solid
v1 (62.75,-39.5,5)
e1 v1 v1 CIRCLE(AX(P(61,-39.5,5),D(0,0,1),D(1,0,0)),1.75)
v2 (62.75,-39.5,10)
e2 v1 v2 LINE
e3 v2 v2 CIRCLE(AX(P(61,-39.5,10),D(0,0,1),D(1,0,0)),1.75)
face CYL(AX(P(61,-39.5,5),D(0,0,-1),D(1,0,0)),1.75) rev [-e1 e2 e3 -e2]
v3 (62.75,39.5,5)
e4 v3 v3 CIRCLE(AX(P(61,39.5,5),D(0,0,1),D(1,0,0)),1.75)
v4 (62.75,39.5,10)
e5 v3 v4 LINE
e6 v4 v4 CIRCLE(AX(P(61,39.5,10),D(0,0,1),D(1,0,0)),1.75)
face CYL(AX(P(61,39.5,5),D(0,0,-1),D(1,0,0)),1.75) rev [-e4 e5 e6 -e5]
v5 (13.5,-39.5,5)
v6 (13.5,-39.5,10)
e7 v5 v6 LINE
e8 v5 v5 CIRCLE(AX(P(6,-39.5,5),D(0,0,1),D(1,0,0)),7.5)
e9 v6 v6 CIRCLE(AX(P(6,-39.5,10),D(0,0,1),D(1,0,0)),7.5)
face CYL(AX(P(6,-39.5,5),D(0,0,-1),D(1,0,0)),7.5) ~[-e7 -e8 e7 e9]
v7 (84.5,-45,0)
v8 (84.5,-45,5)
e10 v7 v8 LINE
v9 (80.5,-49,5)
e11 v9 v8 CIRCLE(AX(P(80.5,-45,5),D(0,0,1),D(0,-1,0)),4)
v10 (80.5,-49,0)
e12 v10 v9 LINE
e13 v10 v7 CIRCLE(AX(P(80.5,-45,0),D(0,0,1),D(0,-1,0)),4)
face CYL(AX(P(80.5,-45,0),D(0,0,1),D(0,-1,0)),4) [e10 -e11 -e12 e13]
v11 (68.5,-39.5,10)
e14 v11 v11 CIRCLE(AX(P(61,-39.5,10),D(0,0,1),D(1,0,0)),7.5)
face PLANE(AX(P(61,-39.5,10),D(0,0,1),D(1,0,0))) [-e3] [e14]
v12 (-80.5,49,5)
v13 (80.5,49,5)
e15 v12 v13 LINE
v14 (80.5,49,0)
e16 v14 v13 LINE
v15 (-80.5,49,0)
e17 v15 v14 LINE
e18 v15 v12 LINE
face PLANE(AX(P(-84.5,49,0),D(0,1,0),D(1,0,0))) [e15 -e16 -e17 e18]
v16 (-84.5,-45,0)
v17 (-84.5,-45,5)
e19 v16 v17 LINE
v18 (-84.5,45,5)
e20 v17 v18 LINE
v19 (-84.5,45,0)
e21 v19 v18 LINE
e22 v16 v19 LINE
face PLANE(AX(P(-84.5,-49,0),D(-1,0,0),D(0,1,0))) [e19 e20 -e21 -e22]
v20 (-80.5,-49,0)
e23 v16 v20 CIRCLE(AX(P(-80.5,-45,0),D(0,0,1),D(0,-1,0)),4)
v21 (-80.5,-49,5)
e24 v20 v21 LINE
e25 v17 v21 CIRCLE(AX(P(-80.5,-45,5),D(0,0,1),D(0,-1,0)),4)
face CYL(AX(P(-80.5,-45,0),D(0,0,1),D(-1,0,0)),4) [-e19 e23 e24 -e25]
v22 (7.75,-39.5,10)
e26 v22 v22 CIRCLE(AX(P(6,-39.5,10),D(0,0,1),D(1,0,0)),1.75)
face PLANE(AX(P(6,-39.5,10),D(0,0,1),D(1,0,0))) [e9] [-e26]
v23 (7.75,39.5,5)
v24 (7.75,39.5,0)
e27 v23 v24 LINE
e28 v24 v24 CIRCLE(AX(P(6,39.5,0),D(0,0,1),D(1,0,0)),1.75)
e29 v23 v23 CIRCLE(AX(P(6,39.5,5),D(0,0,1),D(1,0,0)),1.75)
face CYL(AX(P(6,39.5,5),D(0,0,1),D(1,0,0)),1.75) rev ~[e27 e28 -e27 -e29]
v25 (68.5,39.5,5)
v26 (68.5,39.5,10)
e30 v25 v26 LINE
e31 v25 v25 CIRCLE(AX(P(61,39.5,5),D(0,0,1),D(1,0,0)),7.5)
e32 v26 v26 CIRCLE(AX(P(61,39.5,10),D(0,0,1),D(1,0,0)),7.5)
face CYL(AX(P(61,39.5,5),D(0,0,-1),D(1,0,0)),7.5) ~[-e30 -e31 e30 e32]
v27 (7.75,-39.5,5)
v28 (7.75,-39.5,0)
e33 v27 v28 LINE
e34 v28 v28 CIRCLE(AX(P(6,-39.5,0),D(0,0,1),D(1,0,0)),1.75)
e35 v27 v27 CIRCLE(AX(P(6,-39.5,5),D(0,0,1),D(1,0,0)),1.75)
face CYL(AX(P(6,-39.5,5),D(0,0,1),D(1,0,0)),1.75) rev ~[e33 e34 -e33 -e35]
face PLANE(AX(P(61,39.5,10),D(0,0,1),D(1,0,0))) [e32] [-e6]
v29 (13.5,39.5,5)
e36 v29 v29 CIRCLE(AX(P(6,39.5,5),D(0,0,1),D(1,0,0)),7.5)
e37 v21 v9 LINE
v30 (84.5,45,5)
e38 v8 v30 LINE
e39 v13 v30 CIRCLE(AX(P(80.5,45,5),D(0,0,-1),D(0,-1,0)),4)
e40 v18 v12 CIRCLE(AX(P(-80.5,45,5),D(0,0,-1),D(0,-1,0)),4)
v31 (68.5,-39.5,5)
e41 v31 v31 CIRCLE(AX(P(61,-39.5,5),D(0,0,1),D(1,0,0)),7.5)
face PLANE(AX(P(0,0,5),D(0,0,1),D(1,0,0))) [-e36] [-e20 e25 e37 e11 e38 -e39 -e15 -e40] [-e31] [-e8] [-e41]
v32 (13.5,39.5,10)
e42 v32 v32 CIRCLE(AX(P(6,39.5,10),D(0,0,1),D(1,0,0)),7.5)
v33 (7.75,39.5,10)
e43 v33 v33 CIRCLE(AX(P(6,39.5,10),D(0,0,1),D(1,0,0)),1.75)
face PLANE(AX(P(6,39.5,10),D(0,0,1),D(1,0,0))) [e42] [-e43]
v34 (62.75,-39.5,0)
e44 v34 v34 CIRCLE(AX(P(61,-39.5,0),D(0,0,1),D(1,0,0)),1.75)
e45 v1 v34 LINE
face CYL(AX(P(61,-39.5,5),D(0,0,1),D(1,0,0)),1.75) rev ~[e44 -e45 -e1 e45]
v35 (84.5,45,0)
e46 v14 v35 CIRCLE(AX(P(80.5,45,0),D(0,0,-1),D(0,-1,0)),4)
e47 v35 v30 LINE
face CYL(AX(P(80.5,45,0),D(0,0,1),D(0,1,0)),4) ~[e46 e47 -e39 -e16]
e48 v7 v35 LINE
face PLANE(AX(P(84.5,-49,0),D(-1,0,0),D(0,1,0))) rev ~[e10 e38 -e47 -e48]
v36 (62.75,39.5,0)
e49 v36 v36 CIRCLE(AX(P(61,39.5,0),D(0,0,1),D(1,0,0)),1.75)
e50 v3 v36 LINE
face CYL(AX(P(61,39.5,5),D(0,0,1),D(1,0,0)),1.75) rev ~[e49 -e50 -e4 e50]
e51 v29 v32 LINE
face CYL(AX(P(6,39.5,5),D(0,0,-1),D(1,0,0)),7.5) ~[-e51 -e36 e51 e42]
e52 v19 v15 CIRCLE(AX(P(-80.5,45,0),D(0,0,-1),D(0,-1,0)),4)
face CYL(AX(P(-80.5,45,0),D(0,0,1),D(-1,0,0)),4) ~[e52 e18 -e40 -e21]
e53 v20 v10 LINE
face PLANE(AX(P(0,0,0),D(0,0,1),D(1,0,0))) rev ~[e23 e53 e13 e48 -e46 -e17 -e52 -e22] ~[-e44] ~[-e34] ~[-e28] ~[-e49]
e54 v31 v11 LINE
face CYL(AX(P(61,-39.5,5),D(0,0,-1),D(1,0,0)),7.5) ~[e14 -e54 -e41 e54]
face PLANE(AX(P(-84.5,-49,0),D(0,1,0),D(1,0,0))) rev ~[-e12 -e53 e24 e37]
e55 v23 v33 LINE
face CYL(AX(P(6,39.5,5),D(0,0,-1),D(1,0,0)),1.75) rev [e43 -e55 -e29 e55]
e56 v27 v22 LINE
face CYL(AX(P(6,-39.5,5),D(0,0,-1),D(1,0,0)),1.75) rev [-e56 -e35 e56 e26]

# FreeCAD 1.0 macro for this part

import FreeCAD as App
import Part
import Sketcher
from FreeCAD import Vector
Q = App.Units.Quantity


def edges_at(feature, points):
    """Names of the edges that pass closest to the given points."""
    edges = feature.Shape.Edges
    near = lambda p: min(range(len(edges)), key=lambda i: edges[i].distToShape(Part.Vertex(*p))[0])
    return sorted({f"Edge{near(p) + 1}" for p in points})


def add_polygon(sketch, points):
    """Adds a closed chain of lines whose ends are joined by coincident constraints."""
    first, n = sketch.GeometryCount, len(points)
    for a, b in zip(points, points[1:] + points[:1]):
        sketch.addGeometry(Part.LineSegment(App.Vector(*a, 0), App.Vector(*b, 0)), False)
    for i in range(n):
        sketch.addConstraint(Sketcher.Constraint("Coincident", first + i, 2, first + (i + 1) % n, 1))

doc = App.newDocument("Part")
body = doc.addObject("PartDesign::Body", "Body")

# Sketch on XY plane
sketch1 = doc.addObject("Sketcher::SketchObject", "Sketch")
body.addObject(sketch1)
sketch1.AttachmentSupport = (doc.XY_Plane, [""])
sketch1.MapMode = "FlatFace"
add_polygon(sketch1, [(-84, 49), (-84, -49), (84, -49), (84, 49)])  # lines 0-3
sketch1.addConstraint([
    Sketcher.Constraint("Vertical", 0),
    Sketcher.Constraint("Horizontal", 1),
    Sketcher.Constraint("Vertical", 2),
    Sketcher.Constraint("Horizontal", 3),
    Sketcher.Constraint("Symmetric", 0, 2, 2, 2, -1, 1),
    Sketcher.Constraint("DistanceX", 1, 1, 1, 2, Q("169 mm")),
    Sketcher.Constraint("DistanceY", 0, 2, 0, 1, Q("98 mm")),
])
pad1 = doc.addObject("PartDesign::Pad", "Pad")
body.addObject(pad1)
pad1.Profile = sketch1
pad1.Length = 5

# Sketch on XY plane
sketch2 = doc.addObject("Sketcher::SketchObject", "Sketch001")
body.addObject(sketch2)
sketch2.AttachmentSupport = (doc.XY_Plane, [""])
sketch2.MapMode = "FlatFace"
sketch2.AttachmentOffset = App.Placement(Vector(0, 0, 5), App.Rotation())
sketch2.addGeometry([
    Part.Circle(Vector(6, 39.5, 0), Vector(0, 0, 1), 1.8),
    Part.Circle(Vector(61, 39.5, 0), Vector(0, 0, 1), 1.8),
    Part.Circle(Vector(61, -39.5, 0), Vector(0, 0, 1), 1.8),
    Part.Circle(Vector(6, -39.5, 0), Vector(0, 0, 1), 1.8),
], False)
sketch2.addConstraint([
    Sketcher.Constraint("Equal", 0, 1),
    Sketcher.Constraint("Equal", 1, 2),
    Sketcher.Constraint("Equal", 2, 3),
    Sketcher.Constraint("Symmetric", 1, 3, 2, 3, -1),
    Sketcher.Constraint("Symmetric", 0, 3, 3, 3, -1),
    Sketcher.Constraint("Horizontal", 0, 3, 1, 3),
    Sketcher.Constraint("Diameter", 0, Q("3.5 mm")),
    Sketcher.Constraint("DistanceX", -1, 1, 0, 3, Q("6 mm")),
    Sketcher.Constraint("DistanceX", -1, 1, 1, 3, Q("61 mm")),
    Sketcher.Constraint("DistanceY", 2, 3, 1, 3, Q("79 mm")),
])
pocket1 = doc.addObject("PartDesign::Pocket", "Pocket")
body.addObject(pocket1)
pocket1.Profile = sketch2
pocket1.Type = "ThroughAll"
doc.recompute()

fillet = doc.addObject("PartDesign::Fillet", "Fillet")
body.addObject(fillet)
fillet.Base = (pocket1, edges_at(pocket1, [
    (-84.5, 49, 2.5),
    (-84.5, -49, 2.5),
    (84.5, -49, 2.5),
    (84.5, 49, 2.5),
]))
fillet.Radius = 4

# Sketch on XY plane
sketch3 = doc.addObject("Sketcher::SketchObject", "Sketch002")
body.addObject(sketch3)
sketch3.AttachmentSupport = (doc.XY_Plane, [""])
sketch3.MapMode = "FlatFace"
sketch3.AttachmentOffset = App.Placement(Vector(0, 0, 5), App.Rotation())
sketch3.addGeometry([
    Part.Circle(Vector(6, 39.5, 0), Vector(0, 0, 1), 7.5),  # 0
    Part.Circle(Vector(6, 39.5, 0), Vector(0, 0, 1), 1.8),  # 1
    Part.Circle(Vector(61, 39.5, 0), Vector(0, 0, 1), 7.5),  # 2
    Part.Circle(Vector(61, 39.5, 0), Vector(0, 0, 1), 1.8),  # 3
    Part.Circle(Vector(6, -39.5, 0), Vector(0, 0, 1), 7.5),  # 4
    Part.Circle(Vector(6, -39.5, 0), Vector(0, 0, 1), 1.8),  # 5
    Part.Circle(Vector(61, -39.5, 0), Vector(0, 0, 1), 7.5),  # 6
    Part.Circle(Vector(61, -39.5, 0), Vector(0, 0, 1), 1.8),  # 7
], False)
sketch3.addConstraint([
    Sketcher.Constraint("Coincident", 1, 3, 0, 3),
    Sketcher.Constraint("Coincident", 3, 3, 2, 3),
    Sketcher.Constraint("Coincident", 5, 3, 4, 3),
    Sketcher.Constraint("Coincident", 7, 3, 6, 3),
    Sketcher.Constraint("Equal", 0, 2),
    Sketcher.Constraint("Equal", 1, 3),
    Sketcher.Constraint("Equal", 2, 4),
    Sketcher.Constraint("Equal", 3, 5),
    Sketcher.Constraint("Equal", 4, 6),
    Sketcher.Constraint("Equal", 5, 7),
    Sketcher.Constraint("Symmetric", 0, 3, 4, 3, -1),
    Sketcher.Constraint("Symmetric", 2, 3, 6, 3, -1),
    Sketcher.Constraint("Horizontal", 1, 3, 2, 3),
    Sketcher.Constraint("Diameter", 0, Q("15 mm")),
    Sketcher.Constraint("Diameter", 1, Q("3.5 mm")),
    Sketcher.Constraint("DistanceX", -1, 1, 0, 3, Q("6 mm")),
    Sketcher.Constraint("DistanceX", -1, 1, 2, 3, Q("61 mm")),
    Sketcher.Constraint("DistanceY", 4, 3, 0, 3, Q("79 mm")),
])
pad2 = doc.addObject("PartDesign::Pad", "Pad001")
body.addObject(pad2)
pad2.Profile = sketch3
pad2.Length = 5

doc.recompute()
